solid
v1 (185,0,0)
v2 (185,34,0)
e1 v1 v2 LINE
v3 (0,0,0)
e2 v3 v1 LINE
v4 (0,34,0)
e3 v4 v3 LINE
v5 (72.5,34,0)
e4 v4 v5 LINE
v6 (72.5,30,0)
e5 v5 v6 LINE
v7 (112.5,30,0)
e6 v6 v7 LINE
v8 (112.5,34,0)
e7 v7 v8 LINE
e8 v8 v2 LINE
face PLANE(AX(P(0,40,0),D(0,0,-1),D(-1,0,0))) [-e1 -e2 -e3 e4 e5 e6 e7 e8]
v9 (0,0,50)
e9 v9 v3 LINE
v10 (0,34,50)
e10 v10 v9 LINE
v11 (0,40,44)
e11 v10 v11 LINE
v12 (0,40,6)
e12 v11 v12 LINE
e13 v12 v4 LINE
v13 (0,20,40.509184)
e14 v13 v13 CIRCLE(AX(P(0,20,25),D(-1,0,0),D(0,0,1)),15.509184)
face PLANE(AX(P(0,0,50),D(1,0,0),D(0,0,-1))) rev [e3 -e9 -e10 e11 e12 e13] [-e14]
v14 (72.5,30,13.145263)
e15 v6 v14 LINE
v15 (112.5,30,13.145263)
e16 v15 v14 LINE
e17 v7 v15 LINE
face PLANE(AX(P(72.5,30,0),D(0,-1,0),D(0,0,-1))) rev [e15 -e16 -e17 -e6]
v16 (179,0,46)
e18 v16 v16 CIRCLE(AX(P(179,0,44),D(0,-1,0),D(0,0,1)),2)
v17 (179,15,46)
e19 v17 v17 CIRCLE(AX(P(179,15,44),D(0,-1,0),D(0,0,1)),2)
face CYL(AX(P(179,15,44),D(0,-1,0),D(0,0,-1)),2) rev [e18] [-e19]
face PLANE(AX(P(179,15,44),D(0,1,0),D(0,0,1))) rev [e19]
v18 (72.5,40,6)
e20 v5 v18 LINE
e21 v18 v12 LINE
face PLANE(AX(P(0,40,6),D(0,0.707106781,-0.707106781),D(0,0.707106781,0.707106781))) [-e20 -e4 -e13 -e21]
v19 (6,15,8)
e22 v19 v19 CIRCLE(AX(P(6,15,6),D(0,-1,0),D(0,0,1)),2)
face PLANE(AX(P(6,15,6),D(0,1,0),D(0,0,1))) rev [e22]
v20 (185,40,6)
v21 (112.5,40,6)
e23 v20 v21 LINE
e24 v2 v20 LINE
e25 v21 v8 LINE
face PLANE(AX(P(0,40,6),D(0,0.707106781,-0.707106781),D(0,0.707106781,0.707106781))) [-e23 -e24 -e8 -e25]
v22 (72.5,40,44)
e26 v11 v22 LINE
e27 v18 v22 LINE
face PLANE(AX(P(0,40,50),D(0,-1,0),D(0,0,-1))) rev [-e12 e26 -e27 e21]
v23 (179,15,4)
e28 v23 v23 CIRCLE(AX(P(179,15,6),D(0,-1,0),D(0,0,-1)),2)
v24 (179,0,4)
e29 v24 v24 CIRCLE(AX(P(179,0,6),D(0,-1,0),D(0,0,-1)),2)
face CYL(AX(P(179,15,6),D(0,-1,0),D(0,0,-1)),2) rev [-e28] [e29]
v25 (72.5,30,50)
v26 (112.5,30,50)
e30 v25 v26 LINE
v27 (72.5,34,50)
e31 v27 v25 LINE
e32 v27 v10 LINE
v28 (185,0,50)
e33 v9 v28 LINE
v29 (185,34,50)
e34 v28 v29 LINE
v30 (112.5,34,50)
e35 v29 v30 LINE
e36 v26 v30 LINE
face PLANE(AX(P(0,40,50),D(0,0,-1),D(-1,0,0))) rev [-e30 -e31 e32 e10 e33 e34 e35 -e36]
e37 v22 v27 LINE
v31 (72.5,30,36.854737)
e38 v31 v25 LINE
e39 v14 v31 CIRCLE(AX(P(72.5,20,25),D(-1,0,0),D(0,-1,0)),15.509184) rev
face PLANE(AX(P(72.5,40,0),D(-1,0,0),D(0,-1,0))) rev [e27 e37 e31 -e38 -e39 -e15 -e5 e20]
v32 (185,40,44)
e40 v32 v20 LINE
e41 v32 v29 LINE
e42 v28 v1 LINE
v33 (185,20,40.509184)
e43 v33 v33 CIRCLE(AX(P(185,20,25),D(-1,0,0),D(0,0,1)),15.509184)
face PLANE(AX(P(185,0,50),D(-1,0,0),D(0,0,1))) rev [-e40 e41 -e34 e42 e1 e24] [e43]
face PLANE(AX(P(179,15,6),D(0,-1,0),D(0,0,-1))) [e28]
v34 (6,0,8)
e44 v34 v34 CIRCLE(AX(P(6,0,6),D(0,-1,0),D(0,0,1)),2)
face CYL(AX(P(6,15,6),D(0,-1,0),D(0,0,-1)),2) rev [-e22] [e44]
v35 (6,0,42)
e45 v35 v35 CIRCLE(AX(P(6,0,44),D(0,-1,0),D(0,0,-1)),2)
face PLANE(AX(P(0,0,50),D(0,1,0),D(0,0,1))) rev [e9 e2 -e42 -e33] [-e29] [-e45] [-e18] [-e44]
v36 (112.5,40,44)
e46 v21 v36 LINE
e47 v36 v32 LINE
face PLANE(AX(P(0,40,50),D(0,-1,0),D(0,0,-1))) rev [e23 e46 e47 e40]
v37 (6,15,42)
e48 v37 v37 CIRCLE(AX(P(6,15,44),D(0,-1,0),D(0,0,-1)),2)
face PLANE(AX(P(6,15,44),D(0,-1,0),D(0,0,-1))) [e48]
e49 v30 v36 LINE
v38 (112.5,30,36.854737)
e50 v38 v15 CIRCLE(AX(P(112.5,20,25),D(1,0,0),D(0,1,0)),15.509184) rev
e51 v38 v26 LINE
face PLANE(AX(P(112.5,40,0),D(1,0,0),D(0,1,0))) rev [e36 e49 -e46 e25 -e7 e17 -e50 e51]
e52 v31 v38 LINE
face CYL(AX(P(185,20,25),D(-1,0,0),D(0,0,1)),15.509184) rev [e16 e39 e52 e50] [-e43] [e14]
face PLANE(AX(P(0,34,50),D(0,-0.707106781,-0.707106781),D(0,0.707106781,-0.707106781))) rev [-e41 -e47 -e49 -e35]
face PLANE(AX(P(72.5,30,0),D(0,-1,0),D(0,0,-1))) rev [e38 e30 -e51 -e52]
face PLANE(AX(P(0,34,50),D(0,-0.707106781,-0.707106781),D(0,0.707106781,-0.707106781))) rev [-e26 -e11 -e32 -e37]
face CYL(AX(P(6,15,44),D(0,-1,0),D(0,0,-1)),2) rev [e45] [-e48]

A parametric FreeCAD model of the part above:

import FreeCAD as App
import Part
import Sketcher

V = App.Vector


def edges_at(feature, points):
    """Names of the edges that pass closest to the given points."""
    edges = feature.Shape.Edges
    near = lambda p: min(range(len(edges)), key=lambda i: edges[i].distToShape(Part.Vertex(*p))[0])
    return sorted({f"Edge{near(p) + 1}" for p in points})

doc = App.newDocument("Part")
params = doc.addObject("Spreadsheet::Sheet", "Params")
for row, (alias, value) in enumerate([
    ("sketch1_width", "185 mm"),
    ("sketch1_height", "40 mm"),
    ("pad1_length", "50 mm"),
    ("pocket1_length", "185 mm"),
    ("chamfer_size", "6 mm"),
    ("sketch3_diameter", "4 mm"),
    ("pocket2_length", "15 mm"),
    ("sketch4_width", "40 mm"),
    ("sketch4_height", "10 mm"),
    ("pocket3_length", "50 mm"),
], start=1):
    params.set(f"A{row}", alias)
    params.set(f"B{row}", "=" + value)
    params.setAlias(f"B{row}", alias)

body = doc.addObject("PartDesign::Body", "Body")

sketch1 = body.newObject("Sketcher::SketchObject", "Sketch")
sketch1.AttachmentSupport = (doc.getObject("XY_Plane"), [""])
sketch1.MapMode = "FlatFace"
sketch1.addGeometry(Part.LineSegment(V(0, 40, 0), V(0, 0, 0)), False)
sketch1.addGeometry(Part.LineSegment(V(0, 0, 0), V(185, 0, 0)), False)
sketch1.addGeometry(Part.LineSegment(V(185, 0, 0), V(185, 40, 0)), False)
sketch1.addGeometry(Part.LineSegment(V(185, 40, 0), V(0, 40, 0)), False)
sketch1.addConstraint(Sketcher.Constraint("Coincident", 0, 2, 1, 1))
sketch1.addConstraint(Sketcher.Constraint("Coincident", 1, 2, 2, 1))
sketch1.addConstraint(Sketcher.Constraint("Coincident", 2, 2, 3, 1))
sketch1.addConstraint(Sketcher.Constraint("Coincident", 3, 2, 0, 1))
sketch1.addConstraint(Sketcher.Constraint("Vertical", 0))
sketch1.addConstraint(Sketcher.Constraint("Horizontal", 1))
sketch1.addConstraint(Sketcher.Constraint("Vertical", 2))
sketch1.addConstraint(Sketcher.Constraint("Horizontal", 3))
sketch1.addConstraint(Sketcher.Constraint("Coincident", 0, 2, -1, 1))
sketch1.addConstraint(Sketcher.Constraint("DistanceX", 1, 1, 1, 2, 185.0))
sketch1.addConstraint(Sketcher.Constraint("DistanceY", 0, 2, 0, 1, 40.0))
sketch1.setExpression("Constraints[9]", "Params.sketch1_width")
sketch1.setExpression("Constraints[10]", "Params.sketch1_height")
pad1 = body.newObject("PartDesign::Pad", "Pad")
pad1.Profile = sketch1
pad1.setExpression("Length", "Params.pad1_length")

sketch2 = body.newObject("Sketcher::SketchObject", "Sketch001")
sketch2.AttachmentSupport = (doc.getObject("YZ_Plane"), [""])
sketch2.MapMode = "FlatFace"
sketch2.addGeometry(Part.Circle(V(20, 25, 0), V(0, 0, 1), 15.509184), False)
sketch2.addConstraint(Sketcher.Constraint("DistanceX", -1, 1, 0, 3, 20.0))
sketch2.addConstraint(Sketcher.Constraint("DistanceY", -1, 1, 0, 3, 25.0))
sketch2.addConstraint(Sketcher.Constraint("Diameter", 0, 31.018368))
pocket1 = body.newObject("PartDesign::Pocket", "Pocket")
pocket1.Profile = sketch2
pocket1.setExpression("Length", "Params.pocket1_length")
pocket1.Reversed = True
doc.recompute()

chamfer = body.newObject("PartDesign::Chamfer", "Chamfer")
chamfer.Base = (pocket1, edges_at(pocket1, [(92.5, 40, 50), (92.5, 40, 0)]))
chamfer.setExpression("Size", "Params.chamfer_size")

sketch3 = body.newObject("Sketcher::SketchObject", "Sketch002")
sketch3.AttachmentSupport = (doc.getObject("XZ_Plane"), [""])
sketch3.MapMode = "FlatFace"
sketch3.addGeometry(Part.Circle(V(6, 44, 0), V(0, 0, 1), 2), False)
sketch3.addGeometry(Part.Circle(V(6, 6, 0), V(0, 0, 1), 2), False)
sketch3.addGeometry(Part.Circle(V(179, 6, 0), V(0, 0, 1), 2), False)
sketch3.addGeometry(Part.Circle(V(179, 44, 0), V(0, 0, 1), 2), False)
sketch3.addConstraint(Sketcher.Constraint("Equal", 0, 1))
sketch3.addConstraint(Sketcher.Constraint("Equal", 1, 2))
sketch3.addConstraint(Sketcher.Constraint("Equal", 2, 3))
sketch3.addConstraint(Sketcher.Constraint("Horizontal", 1, 3, 2, 3))
sketch3.addConstraint(Sketcher.Constraint("Horizontal", 0, 3, 3, 3))
sketch3.addConstraint(Sketcher.Constraint("Vertical", 0, 3, 1, 3))
sketch3.addConstraint(Sketcher.Constraint("Vertical", 2, 3, 3, 3))
sketch3.addConstraint(Sketcher.Constraint("Diameter", 0, 4.0))
sketch3.addConstraint(Sketcher.Constraint("DistanceX", -1, 1, 0, 3, 6.0))
sketch3.addConstraint(Sketcher.Constraint("DistanceY", -1, 1, 0, 3, 44.0))
sketch3.addConstraint(Sketcher.Constraint("DistanceY", -1, 1, 1, 3, 6.0))
sketch3.addConstraint(Sketcher.Constraint("DistanceX", -1, 1, 2, 3, 179.0))
sketch3.setExpression("Constraints[7]", "Params.sketch3_diameter")
pocket2 = body.newObject("PartDesign::Pocket", "Pocket001")
pocket2.Profile = sketch3
pocket2.setExpression("Length", "Params.pocket2_length")

sketch4 = body.newObject("Sketcher::SketchObject", "Sketch003")
sketch4.AttachmentSupport = (doc.getObject("XY_Plane"), [""])
sketch4.MapMode = "FlatFace"
sketch4.AttachmentOffset = App.Placement(V(0, 0, 50), App.Rotation())
sketch4.addGeometry(Part.LineSegment(V(72.5, 40, 0), V(72.5, 30, 0)), False)
sketch4.addGeometry(Part.LineSegment(V(72.5, 30, 0), V(112.5, 30, 0)), False)
sketch4.addGeometry(Part.LineSegment(V(112.5, 30, 0), V(112.5, 40, 0)), False)
sketch4.addGeometry(Part.LineSegment(V(112.5, 40, 0), V(72.5, 40, 0)), False)
sketch4.addConstraint(Sketcher.Constraint("Coincident", 0, 2, 1, 1))
sketch4.addConstraint(Sketcher.Constraint("Coincident", 1, 2, 2, 1))
sketch4.addConstraint(Sketcher.Constraint("Coincident", 2, 2, 3, 1))
sketch4.addConstraint(Sketcher.Constraint("Coincident", 3, 2, 0, 1))
sketch4.addConstraint(Sketcher.Constraint("Vertical", 0))
sketch4.addConstraint(Sketcher.Constraint("Horizontal", 1))
sketch4.addConstraint(Sketcher.Constraint("Vertical", 2))
sketch4.addConstraint(Sketcher.Constraint("Horizontal", 3))
sketch4.addConstraint(Sketcher.Constraint("DistanceX", 1, 1, 1, 2, 40.0))
sketch4.addConstraint(Sketcher.Constraint("DistanceY", 0, 2, 0, 1, 10.0))
sketch4.addConstraint(Sketcher.Constraint("DistanceY", -1, 1, 0, 2, 30.0))
sketch4.addConstraint(Sketcher.Constraint("DistanceX", -1, 1, 0, 2, 72.5))
sketch4.setExpression("Constraints[8]", "Params.sketch4_width")
sketch4.setExpression("Constraints[9]", "Params.sketch4_height")
pocket3 = body.newObject("PartDesign::Pocket", "Pocket002")
pocket3.Profile = sketch4
pocket3.setExpression("Length", "Params.pocket3_length")

doc.recompute()
